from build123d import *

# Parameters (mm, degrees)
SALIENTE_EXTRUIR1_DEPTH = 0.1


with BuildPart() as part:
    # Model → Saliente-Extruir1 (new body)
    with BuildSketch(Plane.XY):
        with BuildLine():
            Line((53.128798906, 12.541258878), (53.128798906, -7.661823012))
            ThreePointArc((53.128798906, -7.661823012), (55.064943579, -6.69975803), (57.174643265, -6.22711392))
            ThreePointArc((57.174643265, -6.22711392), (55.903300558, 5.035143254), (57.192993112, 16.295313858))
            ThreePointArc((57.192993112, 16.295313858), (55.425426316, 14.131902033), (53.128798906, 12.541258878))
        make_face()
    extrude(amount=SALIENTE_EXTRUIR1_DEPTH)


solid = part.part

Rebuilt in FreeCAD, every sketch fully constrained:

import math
import FreeCAD as App
import Part
import Sketcher
Q = App.Units.Quantity

doc = App.newDocument("Part")
body = doc.addObject("PartDesign::Body", "Body")

sketch1 = doc.addObject("Sketcher::SketchObject", "Sketch")
body.addObject(sketch1)
sketch1.AttachmentSupport = (doc.XY_Plane, [""])
sketch1.MapMode = "FlatFace"
sketch1.addGeometry(Part.LineSegment(App.Vector(53.1, 12.5, 0), App.Vector(53.1, -7.7, 0)), False)
sketch1.addGeometry(Part.ArcOfCircle(Part.Circle(App.Vector(58.1, -15.2, 0), App.Vector(0, 0, 1), 9), math.radians(96), math.radians(123)), False)
sketch1.addGeometry(Part.ArcOfCircle(Part.Circle(App.Vector(106.1, 5, 0), App.Vector(0, 0, 1), 50.2), math.radians(167), math.radians(193)), False)
sketch1.addGeometry(Part.ArcOfCircle(Part.Circle(App.Vector(48.6, 21.5, 0), App.Vector(0, 0, 1), 10), math.radians(-63), math.radians(-31)), False)
sketch1.addConstraint(Sketcher.Constraint("Coincident", 0, 2, 1, 2))
sketch1.addConstraint(Sketcher.Constraint("Coincident", 1, 1, 2, 2))
sketch1.addConstraint(Sketcher.Constraint("Coincident", 2, 1, 3, 2))
sketch1.addConstraint(Sketcher.Constraint("Coincident", 3, 1, 0, 1))
sketch1.addConstraint(Sketcher.Constraint("Vertical", 0))
sketch1.addConstraint(Sketcher.Constraint("Radius", 3, Q("10.009498 mm")))
sketch1.addConstraint(Sketcher.Constraint("Radius", 1, Q("9.001318 mm")))
sketch1.addConstraint(Sketcher.Constraint("Radius", 2, Q("50.157336 mm")))
sketch1.addConstraint(Sketcher.Constraint("DistanceY", 0, 2, 0, 1, Q("20.203082 mm")))
sketch1.addConstraint(Sketcher.Constraint("DistanceX", -1, 1, 0, 2, Q("53.128799 mm")))
sketch1.addConstraint(Sketcher.Constraint("DistanceY", 0, 2, 2, 3, Q("12.656101 mm")))
sketch1.addConstraint(Sketcher.Constraint("DistanceX", -1, 1, 2, 3, Q("106.06062 mm")))
sketch1.addConstraint(Sketcher.Constraint("DistanceY", -1, 1, 2, 3, Q("4.994278 mm")))
sketch1.addConstraint(Sketcher.Constraint("DistanceX", -1, 1, 3, 3, Q("48.63375 mm")))
sketch1.addConstraint(Sketcher.Constraint("DistanceY", 1, 3, 2, 3, Q("20.177731 mm")))
pad1 = doc.addObject("PartDesign::Pad", "Pad")
body.addObject(pad1)
pad1.Profile = sketch1
pad1.Length = 0.1

doc.recompute()
